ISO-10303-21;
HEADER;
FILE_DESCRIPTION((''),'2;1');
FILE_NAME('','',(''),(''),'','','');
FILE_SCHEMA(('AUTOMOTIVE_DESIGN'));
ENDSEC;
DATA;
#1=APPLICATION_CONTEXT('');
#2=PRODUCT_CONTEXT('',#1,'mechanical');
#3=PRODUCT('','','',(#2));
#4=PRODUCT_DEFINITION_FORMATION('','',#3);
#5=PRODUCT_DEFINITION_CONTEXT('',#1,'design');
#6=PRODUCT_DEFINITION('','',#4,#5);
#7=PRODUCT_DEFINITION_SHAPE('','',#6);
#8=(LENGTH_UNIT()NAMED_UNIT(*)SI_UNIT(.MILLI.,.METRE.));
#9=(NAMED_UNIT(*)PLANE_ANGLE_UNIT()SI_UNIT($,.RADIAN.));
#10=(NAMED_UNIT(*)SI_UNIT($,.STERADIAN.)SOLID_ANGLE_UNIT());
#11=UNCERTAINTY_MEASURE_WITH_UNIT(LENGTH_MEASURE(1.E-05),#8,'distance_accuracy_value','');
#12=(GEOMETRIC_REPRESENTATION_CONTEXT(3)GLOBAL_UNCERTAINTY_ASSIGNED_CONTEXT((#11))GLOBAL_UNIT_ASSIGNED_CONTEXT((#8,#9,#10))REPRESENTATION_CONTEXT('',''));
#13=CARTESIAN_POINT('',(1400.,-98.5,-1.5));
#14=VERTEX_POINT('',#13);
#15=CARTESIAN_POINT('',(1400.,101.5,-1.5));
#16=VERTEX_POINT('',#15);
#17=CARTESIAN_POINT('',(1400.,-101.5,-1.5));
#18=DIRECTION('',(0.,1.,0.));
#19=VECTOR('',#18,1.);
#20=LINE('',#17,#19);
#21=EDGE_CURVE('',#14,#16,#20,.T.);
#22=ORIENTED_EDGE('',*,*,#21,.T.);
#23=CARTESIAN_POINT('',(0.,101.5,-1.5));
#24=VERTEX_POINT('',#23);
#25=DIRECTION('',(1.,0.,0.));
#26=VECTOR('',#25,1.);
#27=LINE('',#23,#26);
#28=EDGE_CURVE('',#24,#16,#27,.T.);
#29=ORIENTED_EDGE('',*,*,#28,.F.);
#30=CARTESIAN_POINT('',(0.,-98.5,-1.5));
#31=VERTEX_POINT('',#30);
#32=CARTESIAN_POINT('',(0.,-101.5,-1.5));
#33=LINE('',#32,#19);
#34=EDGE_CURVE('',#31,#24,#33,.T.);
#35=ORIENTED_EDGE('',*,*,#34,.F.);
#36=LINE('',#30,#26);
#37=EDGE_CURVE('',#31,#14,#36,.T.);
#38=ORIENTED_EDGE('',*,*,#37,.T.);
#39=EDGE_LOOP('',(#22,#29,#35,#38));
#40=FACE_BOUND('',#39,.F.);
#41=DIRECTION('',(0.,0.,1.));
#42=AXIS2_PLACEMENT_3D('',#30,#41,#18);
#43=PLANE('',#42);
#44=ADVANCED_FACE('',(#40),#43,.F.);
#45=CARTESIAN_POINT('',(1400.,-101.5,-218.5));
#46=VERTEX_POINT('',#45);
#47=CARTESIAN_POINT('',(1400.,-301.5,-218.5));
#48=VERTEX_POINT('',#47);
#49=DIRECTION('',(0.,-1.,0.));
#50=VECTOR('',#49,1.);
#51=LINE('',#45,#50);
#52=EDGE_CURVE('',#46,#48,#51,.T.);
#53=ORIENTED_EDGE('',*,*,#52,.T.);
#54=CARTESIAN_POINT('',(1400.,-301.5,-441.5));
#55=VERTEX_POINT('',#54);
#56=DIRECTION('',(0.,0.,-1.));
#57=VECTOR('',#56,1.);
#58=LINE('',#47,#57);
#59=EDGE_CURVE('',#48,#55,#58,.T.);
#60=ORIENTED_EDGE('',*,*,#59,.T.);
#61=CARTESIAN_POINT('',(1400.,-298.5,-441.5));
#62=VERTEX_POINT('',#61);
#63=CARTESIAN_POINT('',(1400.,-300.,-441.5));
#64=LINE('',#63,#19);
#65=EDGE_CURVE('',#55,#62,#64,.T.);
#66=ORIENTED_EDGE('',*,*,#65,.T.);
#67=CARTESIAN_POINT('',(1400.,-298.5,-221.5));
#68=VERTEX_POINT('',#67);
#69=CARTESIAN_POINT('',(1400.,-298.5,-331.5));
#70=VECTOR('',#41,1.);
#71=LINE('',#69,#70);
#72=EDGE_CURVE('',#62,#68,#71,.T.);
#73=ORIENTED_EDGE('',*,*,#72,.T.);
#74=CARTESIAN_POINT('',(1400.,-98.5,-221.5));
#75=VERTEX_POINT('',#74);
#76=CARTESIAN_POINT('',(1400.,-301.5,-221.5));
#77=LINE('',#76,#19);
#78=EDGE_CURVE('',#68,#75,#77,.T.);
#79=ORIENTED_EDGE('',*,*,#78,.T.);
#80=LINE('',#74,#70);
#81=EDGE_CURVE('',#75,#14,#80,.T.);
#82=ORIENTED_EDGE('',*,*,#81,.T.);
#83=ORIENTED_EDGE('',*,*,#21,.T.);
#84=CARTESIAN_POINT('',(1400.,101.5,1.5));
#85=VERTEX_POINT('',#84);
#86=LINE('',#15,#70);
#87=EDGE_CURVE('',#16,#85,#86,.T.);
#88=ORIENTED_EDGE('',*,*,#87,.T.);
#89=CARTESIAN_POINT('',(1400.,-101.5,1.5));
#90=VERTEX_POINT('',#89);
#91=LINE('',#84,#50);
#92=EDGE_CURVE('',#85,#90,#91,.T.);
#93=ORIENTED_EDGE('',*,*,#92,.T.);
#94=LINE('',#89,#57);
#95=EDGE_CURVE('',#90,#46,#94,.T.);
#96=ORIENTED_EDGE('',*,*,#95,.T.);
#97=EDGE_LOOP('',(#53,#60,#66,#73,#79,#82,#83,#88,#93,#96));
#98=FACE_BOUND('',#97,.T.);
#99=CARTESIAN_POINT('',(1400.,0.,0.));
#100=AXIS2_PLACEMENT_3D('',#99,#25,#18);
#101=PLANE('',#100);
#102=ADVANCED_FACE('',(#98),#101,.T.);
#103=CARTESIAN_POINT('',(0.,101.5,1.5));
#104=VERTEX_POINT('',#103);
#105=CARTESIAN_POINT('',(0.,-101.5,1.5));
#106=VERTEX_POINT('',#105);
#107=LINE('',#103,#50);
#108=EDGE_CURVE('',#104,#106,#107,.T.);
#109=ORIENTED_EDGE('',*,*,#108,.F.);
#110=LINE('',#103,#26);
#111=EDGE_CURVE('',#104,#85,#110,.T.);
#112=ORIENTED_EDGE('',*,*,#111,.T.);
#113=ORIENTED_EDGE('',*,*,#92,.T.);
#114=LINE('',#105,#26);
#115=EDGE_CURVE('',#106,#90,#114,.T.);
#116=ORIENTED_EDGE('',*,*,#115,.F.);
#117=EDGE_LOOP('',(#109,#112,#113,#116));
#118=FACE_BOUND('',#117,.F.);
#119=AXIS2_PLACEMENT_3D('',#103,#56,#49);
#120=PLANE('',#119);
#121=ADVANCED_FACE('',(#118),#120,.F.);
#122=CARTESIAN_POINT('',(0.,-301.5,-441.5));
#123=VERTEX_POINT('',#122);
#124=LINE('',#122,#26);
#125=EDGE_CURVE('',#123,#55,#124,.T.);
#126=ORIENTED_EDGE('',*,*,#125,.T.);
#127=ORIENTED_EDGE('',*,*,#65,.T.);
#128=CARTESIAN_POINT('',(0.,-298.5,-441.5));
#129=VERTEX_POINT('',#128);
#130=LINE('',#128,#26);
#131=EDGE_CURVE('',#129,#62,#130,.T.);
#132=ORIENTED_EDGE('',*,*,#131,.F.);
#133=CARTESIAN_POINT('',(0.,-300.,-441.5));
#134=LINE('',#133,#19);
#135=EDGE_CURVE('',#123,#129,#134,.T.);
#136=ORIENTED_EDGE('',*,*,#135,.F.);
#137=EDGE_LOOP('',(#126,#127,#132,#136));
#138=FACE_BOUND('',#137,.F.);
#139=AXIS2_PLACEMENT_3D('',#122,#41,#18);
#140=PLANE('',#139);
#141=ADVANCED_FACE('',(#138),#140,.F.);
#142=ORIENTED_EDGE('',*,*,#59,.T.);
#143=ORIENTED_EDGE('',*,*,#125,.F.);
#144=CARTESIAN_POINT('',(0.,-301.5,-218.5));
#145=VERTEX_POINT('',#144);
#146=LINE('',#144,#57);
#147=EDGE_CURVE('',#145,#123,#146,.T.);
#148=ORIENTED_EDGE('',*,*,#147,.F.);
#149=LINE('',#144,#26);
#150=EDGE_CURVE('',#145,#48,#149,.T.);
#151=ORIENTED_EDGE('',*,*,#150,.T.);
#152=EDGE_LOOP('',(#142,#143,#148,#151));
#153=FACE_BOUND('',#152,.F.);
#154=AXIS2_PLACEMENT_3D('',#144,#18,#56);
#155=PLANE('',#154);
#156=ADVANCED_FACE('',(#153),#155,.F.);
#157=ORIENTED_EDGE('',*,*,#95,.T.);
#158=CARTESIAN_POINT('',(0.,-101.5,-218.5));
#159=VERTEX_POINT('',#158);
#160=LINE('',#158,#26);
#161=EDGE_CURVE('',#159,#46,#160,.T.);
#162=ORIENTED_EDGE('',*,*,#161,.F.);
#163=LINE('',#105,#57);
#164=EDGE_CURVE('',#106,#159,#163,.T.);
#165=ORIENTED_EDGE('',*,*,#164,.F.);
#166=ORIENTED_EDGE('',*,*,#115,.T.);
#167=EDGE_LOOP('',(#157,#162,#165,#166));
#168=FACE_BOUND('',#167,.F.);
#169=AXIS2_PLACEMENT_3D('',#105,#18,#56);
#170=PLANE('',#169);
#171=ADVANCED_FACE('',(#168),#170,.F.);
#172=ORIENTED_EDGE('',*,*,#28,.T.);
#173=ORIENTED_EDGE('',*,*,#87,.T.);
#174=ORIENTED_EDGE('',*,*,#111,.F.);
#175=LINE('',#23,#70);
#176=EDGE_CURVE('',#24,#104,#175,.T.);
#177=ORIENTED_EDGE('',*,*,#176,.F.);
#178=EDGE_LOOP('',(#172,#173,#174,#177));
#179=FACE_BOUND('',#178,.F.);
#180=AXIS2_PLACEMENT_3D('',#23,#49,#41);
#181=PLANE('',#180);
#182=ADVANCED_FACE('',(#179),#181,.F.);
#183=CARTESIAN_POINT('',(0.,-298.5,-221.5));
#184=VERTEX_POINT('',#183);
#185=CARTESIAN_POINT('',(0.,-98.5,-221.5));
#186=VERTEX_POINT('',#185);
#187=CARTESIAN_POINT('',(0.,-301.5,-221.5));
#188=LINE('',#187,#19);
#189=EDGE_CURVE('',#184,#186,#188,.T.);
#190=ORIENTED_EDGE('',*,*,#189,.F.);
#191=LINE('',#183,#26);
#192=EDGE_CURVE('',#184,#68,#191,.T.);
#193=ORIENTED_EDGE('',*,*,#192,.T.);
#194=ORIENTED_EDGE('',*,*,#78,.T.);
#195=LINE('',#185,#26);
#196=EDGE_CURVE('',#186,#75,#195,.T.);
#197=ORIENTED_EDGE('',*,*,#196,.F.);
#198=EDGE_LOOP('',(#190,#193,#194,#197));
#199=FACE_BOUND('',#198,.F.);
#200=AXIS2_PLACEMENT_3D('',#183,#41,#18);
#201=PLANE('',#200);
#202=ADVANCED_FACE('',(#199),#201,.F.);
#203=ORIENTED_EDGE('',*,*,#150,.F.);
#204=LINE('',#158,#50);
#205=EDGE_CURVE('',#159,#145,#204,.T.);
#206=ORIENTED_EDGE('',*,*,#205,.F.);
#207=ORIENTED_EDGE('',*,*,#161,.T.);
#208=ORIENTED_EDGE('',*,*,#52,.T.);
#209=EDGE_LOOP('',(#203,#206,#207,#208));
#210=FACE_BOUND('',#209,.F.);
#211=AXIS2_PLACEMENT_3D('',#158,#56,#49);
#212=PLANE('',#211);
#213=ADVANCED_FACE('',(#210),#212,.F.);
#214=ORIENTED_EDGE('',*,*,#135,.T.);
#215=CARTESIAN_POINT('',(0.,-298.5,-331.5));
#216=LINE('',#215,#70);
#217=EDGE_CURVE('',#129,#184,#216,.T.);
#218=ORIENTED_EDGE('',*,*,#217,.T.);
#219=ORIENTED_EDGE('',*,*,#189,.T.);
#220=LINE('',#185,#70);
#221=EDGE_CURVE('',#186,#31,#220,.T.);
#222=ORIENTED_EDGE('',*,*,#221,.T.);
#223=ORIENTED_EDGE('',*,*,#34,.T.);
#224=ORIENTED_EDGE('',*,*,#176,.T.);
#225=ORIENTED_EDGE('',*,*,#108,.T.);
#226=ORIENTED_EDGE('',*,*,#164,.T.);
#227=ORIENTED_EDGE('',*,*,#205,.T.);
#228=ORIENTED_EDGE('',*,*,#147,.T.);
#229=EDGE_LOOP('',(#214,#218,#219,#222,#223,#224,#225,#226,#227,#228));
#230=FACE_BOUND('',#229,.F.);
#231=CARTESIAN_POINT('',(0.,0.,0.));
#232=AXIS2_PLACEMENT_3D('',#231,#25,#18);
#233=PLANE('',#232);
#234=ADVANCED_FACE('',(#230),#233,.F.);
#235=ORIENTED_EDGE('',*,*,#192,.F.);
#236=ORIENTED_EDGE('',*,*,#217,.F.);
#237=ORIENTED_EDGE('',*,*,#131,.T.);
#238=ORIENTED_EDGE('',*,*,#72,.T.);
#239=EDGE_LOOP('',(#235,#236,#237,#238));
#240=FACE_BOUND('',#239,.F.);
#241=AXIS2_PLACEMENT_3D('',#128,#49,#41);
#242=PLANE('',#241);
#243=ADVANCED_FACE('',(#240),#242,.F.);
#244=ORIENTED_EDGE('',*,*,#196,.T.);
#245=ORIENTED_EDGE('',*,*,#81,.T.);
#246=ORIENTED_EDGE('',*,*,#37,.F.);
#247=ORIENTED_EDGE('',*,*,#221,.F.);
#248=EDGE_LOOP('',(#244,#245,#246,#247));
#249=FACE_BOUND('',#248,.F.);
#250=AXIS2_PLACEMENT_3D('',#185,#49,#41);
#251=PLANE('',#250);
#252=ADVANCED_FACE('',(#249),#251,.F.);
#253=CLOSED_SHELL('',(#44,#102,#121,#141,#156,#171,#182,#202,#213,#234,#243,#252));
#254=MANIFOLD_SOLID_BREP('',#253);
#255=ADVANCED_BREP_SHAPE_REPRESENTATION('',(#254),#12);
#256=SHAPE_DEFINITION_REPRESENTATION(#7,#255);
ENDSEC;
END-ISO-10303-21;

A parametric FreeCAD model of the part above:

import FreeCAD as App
import Part
import Sketcher
from FreeCAD import Vector
Q = App.Units.Quantity

doc = App.newDocument("Part")
body = doc.addObject("PartDesign::Body", "Body")

# Sketch on YZ plane
sketch1 = body.newObject("Sketcher::SketchObject", "Sketch")
sketch1.AttachmentSupport = (doc.getObject("YZ_Plane"), [""])
sketch1.MapMode = "FlatFace"
sketch1.addGeometry(Part.LineSegment(Vector(101.5, 1.5, 0), Vector(-101.5, 1.5, 0)), False)
sketch1.addGeometry(Part.LineSegment(Vector(-101.5, 1.5, 0), Vector(-101.5, -218.5, 0)), False)
sketch1.addGeometry(Part.LineSegment(Vector(-101.5, -218.5, 0), Vector(-301.5, -218.5, 0)), False)
sketch1.addGeometry(Part.LineSegment(Vector(-301.5, -218.5, 0), Vector(-301.5, -441.5, 0)), False)
sketch1.addGeometry(Part.LineSegment(Vector(-301.5, -441.5, 0), Vector(-298.5, -441.5, 0)), False)
sketch1.addGeometry(Part.LineSegment(Vector(-298.5, -441.5, 0), Vector(-298.5, -221.5, 0)), False)
sketch1.addGeometry(Part.LineSegment(Vector(-298.5, -221.5, 0), Vector(-98.5, -221.5, 0)), False)
sketch1.addGeometry(Part.LineSegment(Vector(-98.5, -221.5, 0), Vector(-98.5, -1.5, 0)), False)
sketch1.addGeometry(Part.LineSegment(Vector(-98.5, -1.5, 0), Vector(101.5, -1.5, 0)), False)
sketch1.addGeometry(Part.LineSegment(Vector(101.5, -1.5, 0), Vector(101.5, 1.5, 0)), False)
sketch1.addConstraint(Sketcher.Constraint("Coincident", 0, 2, 1, 1))
sketch1.addConstraint(Sketcher.Constraint("Coincident", 1, 2, 2, 1))
sketch1.addConstraint(Sketcher.Constraint("Coincident", 2, 2, 3, 1))
sketch1.addConstraint(Sketcher.Constraint("Coincident", 3, 2, 4, 1))
sketch1.addConstraint(Sketcher.Constraint("Coincident", 4, 2, 5, 1))
sketch1.addConstraint(Sketcher.Constraint("Coincident", 5, 2, 6, 1))
sketch1.addConstraint(Sketcher.Constraint("Coincident", 6, 2, 7, 1))
sketch1.addConstraint(Sketcher.Constraint("Coincident", 7, 2, 8, 1))
sketch1.addConstraint(Sketcher.Constraint("Coincident", 8, 2, 9, 1))
sketch1.addConstraint(Sketcher.Constraint("Coincident", 9, 2, 0, 1))
sketch1.addConstraint(Sketcher.Constraint("Horizontal", 0))
sketch1.addConstraint(Sketcher.Constraint("Vertical", 1))
sketch1.addConstraint(Sketcher.Constraint("Horizontal", 2))
sketch1.addConstraint(Sketcher.Constraint("Vertical", 3))
sketch1.addConstraint(Sketcher.Constraint("Horizontal", 4))
sketch1.addConstraint(Sketcher.Constraint("Vertical", 5))
sketch1.addConstraint(Sketcher.Constraint("Horizontal", 6))
sketch1.addConstraint(Sketcher.Constraint("Vertical", 7))
sketch1.addConstraint(Sketcher.Constraint("Horizontal", 8))
sketch1.addConstraint(Sketcher.Constraint("Vertical", 9))
sketch1.addConstraint(Sketcher.Constraint("Symmetric", 0, 2, 8, 2, -1, 1))
sketch1.addConstraint(Sketcher.Constraint("Equal", 2, 6))
sketch1.addConstraint(Sketcher.Constraint("Equal", 6, 8))
sketch1.addConstraint(Sketcher.Constraint("Equal", 1, 5))
sketch1.addConstraint(Sketcher.Constraint("Equal", 5, 7))
sketch1.addConstraint(Sketcher.Constraint("Equal", 4, 9))
sketch1.addConstraint(Sketcher.Constraint("DistanceX", 0, 2, 0, 1, Q("203 mm")))
sketch1.addConstraint(Sketcher.Constraint("DistanceX", 2, 2, 2, 1, Q("200 mm")))
sketch1.addConstraint(Sketcher.Constraint("DistanceY", 1, 2, 1, 1, Q("220 mm")))
pad1 = body.newObject("PartDesign::Pad", "Pad")
pad1.Profile = sketch1
pad1.Length = 1400

doc.recompute()
